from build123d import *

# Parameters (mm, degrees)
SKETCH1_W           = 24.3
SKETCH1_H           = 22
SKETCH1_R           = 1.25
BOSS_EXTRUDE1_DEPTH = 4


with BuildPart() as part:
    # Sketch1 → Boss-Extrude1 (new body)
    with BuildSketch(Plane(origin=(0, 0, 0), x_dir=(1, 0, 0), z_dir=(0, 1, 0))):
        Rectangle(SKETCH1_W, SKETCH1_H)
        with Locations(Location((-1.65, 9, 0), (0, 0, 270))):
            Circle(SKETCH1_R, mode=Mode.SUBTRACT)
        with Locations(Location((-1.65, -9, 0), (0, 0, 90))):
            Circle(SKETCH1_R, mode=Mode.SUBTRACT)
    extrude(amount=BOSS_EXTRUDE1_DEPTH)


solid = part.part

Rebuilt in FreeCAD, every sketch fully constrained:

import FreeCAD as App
import Part
import Sketcher

V = App.Vector
Q = App.Units.Quantity

doc = App.newDocument("Part")
body = doc.addObject("PartDesign::Body", "Body")

sketch1 = body.newObject("Sketcher::SketchObject", "Sketch")
sketch1.AttachmentSupport = (doc.getObject("XZ_Plane"), [""])
sketch1.MapMode = "FlatFace"
sketch1.addGeometry([
    Part.LineSegment(V(-12.15, -11, 0), V(-12.15, 11, 0)),
    Part.LineSegment(V(-12.15, 11, 0), V(12.15, 11, 0)),
    Part.LineSegment(V(12.15, 11, 0), V(12.15, -11, 0)),
    Part.LineSegment(V(12.15, -11, 0), V(-12.15, -11, 0)),
    Part.Circle(V(-1.65, 9, 0), V(0, 0, 1), 1.25),
    Part.Circle(V(-1.65, -9, 0), V(0, 0, 1), 1.25),
], False)
sketch1.addConstraint([
    Sketcher.Constraint("Coincident", 0, 2, 1, 1),
    Sketcher.Constraint("Coincident", 1, 2, 2, 1),
    Sketcher.Constraint("Coincident", 2, 2, 3, 1),
    Sketcher.Constraint("Coincident", 3, 2, 0, 1),
    Sketcher.Constraint("Vertical", 0),
    Sketcher.Constraint("Horizontal", 1),
    Sketcher.Constraint("Vertical", 2),
    Sketcher.Constraint("Horizontal", 3),
    Sketcher.Constraint("Equal", 4, 5),
    Sketcher.Constraint("Symmetric", 0, 2, 2, 2, -1, 1),
    Sketcher.Constraint("Symmetric", 4, 3, 5, 3, -1),
    Sketcher.Constraint("Diameter", 4, Q("2.5 mm")),
    Sketcher.Constraint("DistanceY", 0, 1, 0, 2, Q("22 mm")),
    Sketcher.Constraint("DistanceX", 1, 1, 1, 2, Q("24.3 mm")),
    Sketcher.Constraint("DistanceY", -1, 1, 4, 3, Q("9 mm")),
    Sketcher.Constraint("DistanceX", 0, 2, 4, 3, Q("10.5 mm")),
])
pad1 = body.newObject("PartDesign::Pad", "Pad")
pad1.Profile = sketch1
pad1.Length = 4
pad1.Reversed = True

doc.recompute()
